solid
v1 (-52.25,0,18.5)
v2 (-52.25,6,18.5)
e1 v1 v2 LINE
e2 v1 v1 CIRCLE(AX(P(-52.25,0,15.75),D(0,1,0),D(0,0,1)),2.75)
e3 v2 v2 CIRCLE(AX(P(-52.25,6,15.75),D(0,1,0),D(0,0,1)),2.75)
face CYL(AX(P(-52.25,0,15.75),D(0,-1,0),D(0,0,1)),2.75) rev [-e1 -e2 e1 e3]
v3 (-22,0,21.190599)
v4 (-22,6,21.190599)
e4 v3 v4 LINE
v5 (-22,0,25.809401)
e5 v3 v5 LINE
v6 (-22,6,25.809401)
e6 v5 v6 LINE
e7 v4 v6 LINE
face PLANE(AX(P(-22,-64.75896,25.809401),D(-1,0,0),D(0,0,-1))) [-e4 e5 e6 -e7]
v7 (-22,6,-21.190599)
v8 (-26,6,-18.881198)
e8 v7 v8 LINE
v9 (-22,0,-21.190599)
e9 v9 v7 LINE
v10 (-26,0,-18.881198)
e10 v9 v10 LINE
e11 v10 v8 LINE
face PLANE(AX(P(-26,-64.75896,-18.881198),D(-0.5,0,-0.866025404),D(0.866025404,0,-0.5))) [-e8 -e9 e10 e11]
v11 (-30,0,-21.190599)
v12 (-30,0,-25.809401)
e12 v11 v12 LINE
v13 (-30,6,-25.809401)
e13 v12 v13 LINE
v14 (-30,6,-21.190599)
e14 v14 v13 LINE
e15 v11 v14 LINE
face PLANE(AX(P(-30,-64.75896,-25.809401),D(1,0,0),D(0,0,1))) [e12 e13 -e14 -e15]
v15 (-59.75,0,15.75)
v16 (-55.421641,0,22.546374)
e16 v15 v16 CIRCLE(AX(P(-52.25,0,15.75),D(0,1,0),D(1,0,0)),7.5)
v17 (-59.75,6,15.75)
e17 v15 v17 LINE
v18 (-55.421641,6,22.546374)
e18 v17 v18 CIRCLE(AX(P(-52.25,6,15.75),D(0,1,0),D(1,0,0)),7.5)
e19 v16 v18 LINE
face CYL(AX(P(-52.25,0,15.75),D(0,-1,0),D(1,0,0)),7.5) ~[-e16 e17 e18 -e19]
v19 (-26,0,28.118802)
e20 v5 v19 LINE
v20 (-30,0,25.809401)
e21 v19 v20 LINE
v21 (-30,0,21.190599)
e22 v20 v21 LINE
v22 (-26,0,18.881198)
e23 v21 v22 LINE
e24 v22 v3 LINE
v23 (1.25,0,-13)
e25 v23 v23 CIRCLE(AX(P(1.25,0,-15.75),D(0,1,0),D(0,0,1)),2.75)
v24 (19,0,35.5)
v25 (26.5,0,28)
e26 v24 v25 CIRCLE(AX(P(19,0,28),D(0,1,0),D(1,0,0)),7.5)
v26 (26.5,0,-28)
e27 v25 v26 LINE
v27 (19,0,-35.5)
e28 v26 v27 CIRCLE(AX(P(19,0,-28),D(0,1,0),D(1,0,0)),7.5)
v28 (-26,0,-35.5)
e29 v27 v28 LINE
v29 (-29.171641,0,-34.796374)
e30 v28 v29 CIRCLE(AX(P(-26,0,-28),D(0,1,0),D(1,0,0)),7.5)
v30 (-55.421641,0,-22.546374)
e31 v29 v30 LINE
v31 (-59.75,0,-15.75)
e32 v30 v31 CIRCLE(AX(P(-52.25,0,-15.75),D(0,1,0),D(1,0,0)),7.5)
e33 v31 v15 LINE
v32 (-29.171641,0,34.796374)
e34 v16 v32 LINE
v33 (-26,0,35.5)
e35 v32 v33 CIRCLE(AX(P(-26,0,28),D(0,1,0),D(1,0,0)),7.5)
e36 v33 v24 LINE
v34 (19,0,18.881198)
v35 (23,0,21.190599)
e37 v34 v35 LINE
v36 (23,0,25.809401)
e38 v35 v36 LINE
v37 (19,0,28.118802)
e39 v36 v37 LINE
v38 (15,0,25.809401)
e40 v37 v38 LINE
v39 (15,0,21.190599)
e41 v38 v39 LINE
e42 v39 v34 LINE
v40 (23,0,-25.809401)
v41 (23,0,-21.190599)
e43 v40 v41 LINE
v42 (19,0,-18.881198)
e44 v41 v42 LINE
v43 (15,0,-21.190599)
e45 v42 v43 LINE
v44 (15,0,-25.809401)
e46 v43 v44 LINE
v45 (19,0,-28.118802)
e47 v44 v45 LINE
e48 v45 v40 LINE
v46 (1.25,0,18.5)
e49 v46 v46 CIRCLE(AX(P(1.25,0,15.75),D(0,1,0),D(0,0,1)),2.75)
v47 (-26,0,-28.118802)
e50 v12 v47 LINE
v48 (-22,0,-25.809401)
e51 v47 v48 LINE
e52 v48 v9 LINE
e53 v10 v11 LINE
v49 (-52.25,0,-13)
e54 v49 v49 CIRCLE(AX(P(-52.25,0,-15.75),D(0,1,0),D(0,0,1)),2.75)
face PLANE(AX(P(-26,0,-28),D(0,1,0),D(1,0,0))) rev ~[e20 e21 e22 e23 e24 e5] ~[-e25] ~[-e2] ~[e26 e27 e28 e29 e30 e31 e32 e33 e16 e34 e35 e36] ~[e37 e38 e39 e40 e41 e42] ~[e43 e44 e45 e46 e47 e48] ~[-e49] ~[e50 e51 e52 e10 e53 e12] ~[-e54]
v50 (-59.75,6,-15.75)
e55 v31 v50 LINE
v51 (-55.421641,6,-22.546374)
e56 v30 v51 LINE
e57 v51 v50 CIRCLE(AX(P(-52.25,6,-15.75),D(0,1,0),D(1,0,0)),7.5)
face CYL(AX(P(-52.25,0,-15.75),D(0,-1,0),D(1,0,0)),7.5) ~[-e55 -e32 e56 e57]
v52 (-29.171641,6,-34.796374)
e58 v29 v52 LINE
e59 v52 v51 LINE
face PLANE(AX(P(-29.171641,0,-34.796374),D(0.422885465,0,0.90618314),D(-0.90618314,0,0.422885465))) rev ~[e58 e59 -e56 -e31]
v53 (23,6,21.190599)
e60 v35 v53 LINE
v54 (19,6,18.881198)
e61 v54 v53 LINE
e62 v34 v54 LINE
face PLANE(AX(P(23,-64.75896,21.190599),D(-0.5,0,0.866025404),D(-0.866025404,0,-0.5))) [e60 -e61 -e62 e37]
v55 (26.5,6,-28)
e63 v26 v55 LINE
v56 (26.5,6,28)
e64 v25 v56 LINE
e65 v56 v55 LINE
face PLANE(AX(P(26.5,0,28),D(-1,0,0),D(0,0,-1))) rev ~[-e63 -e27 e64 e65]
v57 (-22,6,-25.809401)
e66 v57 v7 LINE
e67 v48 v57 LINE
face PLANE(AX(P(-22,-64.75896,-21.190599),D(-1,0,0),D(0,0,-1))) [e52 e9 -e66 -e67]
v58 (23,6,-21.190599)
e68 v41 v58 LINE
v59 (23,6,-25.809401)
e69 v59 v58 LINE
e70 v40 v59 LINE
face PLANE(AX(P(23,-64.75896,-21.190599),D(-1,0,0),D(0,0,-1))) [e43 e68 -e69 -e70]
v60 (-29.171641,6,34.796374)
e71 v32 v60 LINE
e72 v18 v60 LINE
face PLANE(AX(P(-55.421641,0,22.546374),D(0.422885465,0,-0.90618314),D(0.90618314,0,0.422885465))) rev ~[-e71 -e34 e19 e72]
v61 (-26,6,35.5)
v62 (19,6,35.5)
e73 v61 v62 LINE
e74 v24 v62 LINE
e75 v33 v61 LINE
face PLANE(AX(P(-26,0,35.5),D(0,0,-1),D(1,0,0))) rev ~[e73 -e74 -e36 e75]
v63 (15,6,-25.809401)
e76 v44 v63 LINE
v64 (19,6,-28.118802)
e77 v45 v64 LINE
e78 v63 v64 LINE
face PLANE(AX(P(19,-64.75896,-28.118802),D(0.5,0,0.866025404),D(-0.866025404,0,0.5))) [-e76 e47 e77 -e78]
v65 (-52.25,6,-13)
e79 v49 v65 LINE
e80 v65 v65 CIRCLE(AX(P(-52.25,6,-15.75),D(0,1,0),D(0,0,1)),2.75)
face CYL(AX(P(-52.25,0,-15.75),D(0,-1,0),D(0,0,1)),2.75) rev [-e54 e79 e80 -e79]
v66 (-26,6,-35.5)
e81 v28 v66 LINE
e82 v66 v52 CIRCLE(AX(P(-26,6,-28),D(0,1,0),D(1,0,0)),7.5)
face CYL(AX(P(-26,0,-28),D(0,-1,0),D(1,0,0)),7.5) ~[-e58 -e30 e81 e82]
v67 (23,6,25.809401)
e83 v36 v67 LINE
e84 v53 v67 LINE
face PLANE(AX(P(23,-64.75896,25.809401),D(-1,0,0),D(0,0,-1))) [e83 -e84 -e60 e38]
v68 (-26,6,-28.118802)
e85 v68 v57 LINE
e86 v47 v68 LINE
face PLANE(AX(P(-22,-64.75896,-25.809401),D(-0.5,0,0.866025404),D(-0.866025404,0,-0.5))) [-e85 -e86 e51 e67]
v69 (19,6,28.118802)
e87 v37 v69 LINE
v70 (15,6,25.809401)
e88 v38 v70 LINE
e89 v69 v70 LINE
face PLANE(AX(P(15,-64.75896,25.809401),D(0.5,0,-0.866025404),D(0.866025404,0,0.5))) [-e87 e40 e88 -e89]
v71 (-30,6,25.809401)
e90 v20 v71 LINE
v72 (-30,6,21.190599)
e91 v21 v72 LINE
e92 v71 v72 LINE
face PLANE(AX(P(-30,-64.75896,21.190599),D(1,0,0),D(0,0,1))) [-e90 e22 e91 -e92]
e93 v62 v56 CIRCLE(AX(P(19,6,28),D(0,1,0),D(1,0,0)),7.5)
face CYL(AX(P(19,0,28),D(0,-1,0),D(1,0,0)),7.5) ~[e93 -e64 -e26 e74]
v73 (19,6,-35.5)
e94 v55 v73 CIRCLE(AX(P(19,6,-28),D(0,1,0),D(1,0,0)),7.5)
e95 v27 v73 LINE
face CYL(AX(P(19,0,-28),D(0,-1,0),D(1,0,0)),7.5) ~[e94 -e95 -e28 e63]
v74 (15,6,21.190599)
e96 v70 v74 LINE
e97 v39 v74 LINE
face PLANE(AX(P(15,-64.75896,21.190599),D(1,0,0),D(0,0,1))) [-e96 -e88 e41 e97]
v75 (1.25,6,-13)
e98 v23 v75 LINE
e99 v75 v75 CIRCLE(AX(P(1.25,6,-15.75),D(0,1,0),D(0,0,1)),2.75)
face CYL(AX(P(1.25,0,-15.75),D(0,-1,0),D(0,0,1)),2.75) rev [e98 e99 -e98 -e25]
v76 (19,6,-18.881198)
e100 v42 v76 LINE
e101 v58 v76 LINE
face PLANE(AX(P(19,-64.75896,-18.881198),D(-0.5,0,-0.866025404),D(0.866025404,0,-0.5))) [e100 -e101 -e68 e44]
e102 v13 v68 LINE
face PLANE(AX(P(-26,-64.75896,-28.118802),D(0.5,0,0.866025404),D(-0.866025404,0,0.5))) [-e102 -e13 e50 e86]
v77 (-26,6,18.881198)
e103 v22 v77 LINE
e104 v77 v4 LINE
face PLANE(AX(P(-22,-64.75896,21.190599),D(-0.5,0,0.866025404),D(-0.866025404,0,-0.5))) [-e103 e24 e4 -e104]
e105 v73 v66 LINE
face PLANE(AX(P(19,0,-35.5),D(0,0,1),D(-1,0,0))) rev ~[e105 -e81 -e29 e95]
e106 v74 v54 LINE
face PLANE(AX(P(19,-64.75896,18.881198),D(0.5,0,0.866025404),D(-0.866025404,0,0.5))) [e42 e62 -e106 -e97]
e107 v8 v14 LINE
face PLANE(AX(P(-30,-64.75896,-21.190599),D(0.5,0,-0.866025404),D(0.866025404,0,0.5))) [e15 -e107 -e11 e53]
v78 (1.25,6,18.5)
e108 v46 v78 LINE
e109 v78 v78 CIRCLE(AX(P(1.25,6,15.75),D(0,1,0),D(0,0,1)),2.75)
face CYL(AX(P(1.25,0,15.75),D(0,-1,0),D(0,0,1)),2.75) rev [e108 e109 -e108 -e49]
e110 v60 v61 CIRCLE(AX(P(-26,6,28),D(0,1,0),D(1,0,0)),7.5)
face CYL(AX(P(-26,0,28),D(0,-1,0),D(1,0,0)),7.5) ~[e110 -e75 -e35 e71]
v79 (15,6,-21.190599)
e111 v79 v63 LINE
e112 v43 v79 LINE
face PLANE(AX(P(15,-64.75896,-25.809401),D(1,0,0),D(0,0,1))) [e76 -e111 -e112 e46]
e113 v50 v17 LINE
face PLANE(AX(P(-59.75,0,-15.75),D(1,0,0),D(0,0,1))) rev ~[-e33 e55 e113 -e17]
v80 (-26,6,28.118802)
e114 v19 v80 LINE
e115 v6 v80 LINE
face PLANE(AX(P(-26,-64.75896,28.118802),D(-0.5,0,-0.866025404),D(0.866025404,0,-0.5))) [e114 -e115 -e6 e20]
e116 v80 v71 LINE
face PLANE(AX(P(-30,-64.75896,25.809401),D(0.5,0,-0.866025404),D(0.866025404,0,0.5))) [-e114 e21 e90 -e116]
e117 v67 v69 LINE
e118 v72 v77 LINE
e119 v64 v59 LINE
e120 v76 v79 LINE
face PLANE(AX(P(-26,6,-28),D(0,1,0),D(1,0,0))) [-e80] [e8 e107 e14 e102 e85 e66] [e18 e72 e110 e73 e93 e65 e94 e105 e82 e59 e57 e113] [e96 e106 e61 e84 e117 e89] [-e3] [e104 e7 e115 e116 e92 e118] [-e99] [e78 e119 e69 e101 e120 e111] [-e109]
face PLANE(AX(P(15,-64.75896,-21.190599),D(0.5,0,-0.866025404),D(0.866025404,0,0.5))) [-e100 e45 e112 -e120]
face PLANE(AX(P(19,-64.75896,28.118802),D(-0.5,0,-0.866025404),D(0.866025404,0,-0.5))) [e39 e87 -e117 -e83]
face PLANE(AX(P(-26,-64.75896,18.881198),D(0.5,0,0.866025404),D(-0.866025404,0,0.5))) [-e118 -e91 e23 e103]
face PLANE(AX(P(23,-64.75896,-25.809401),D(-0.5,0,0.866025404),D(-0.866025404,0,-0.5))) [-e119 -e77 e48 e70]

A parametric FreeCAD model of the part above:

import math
import FreeCAD as App
import Part
import Sketcher

V = App.Vector
Q = App.Units.Quantity

doc = App.newDocument("Part")
body = doc.addObject("PartDesign::Body", "Body")

sketch1 = doc.addObject("Sketcher::SketchObject", "Sketch")
body.addObject(sketch1)
sketch1.AttachmentSupport = (doc.XZ_Plane, [""])
sketch1.MapMode = "FlatFace"
sketch1.addGeometry([
    Part.ArcOfCircle(Part.Circle(V(-52.25, -15.75, 0), V(0, 0, 1), 7.5), math.radians(180), math.radians(244.983107)),
    Part.LineSegment(V(-59.75, -15.75, 0), V(-59.75, 15.75, 0)),
    Part.ArcOfCircle(Part.Circle(V(-52.25, 15.75, 0), V(0, 0, 1), 7.5), math.radians(115.016893), math.radians(180)),
    Part.LineSegment(V(-55.421641, 22.546374, 0), V(-29.171641, 34.796374, 0)),
    Part.ArcOfCircle(Part.Circle(V(-26, 28, 0), V(0, 0, 1), 7.5), math.radians(90), math.radians(115.016893)),
    Part.LineSegment(V(-26, 35.5, 0), V(19, 35.5, 0)),
    Part.ArcOfCircle(Part.Circle(V(19, 28, 0), V(0, 0, 1), 7.5), math.radians(0), math.radians(90)),
    Part.LineSegment(V(26.5, 28, 0), V(26.5, -28, 0)),
    Part.ArcOfCircle(Part.Circle(V(19, -28, 0), V(0, 0, 1), 7.5), math.radians(-90), math.radians(0)),
    Part.LineSegment(V(19, -35.5, 0), V(-26, -35.5, 0)),
    Part.ArcOfCircle(Part.Circle(V(-26, -28, 0), V(0, 0, 1), 7.5), math.radians(-115.016893), math.radians(-90)),
    Part.LineSegment(V(-29.171641, -34.796374, 0), V(-55.421641, -22.546374, 0)),
    Part.Circle(V(-52.25, -15.75, 0), V(0, 0, 1), 2.75),
    Part.Circle(V(1.25, 15.75, 0), V(0, 0, 1), 2.75),
    Part.Circle(V(1.25, -15.75, 0), V(0, 0, 1), 2.75),
    Part.Circle(V(-52.25, 15.75, 0), V(0, 0, 1), 2.75),
    Part.Circle(V(-26, -23.5, 0), V(0, 0, 1), 2.5),
    Part.Circle(V(-26, 23.5, 0), V(0, 0, 1), 2.5),
    Part.Circle(V(19, -23.5, 0), V(0, 0, 1), 2.5),
    Part.Circle(V(19, 23.5, 0), V(0, 0, 1), 2.5),
], False)
sketch1.addConstraint([
    Sketcher.Constraint("Tangent", 0, 1, 1, 1),
    Sketcher.Constraint("Tangent", 1, 2, 2, 2),
    Sketcher.Constraint("Tangent", 2, 1, 3, 1),
    Sketcher.Constraint("Tangent", 3, 2, 4, 2),
    Sketcher.Constraint("Tangent", 4, 1, 5, 1),
    Sketcher.Constraint("Tangent", 5, 2, 6, 2),
    Sketcher.Constraint("Tangent", 6, 1, 7, 1),
    Sketcher.Constraint("Tangent", 7, 2, 8, 2),
    Sketcher.Constraint("Tangent", 8, 1, 9, 1),
    Sketcher.Constraint("Tangent", 9, 2, 10, 2),
    Sketcher.Constraint("Tangent", 10, 1, 11, 1),
    Sketcher.Constraint("Tangent", 11, 2, 0, 2),
    Sketcher.Constraint("Vertical", 1),
    Sketcher.Constraint("Horizontal", 5),
    Sketcher.Constraint("Vertical", 7),
    Sketcher.Constraint("Horizontal", 9),
    Sketcher.Constraint("Coincident", 12, 3, 0, 3),
    Sketcher.Constraint("Coincident", 15, 3, 2, 3),
    Sketcher.Constraint("Equal", 0, 2),
    Sketcher.Constraint("Equal", 2, 4),
    Sketcher.Constraint("Equal", 4, 6),
    Sketcher.Constraint("Equal", 6, 8),
    Sketcher.Constraint("Equal", 8, 10),
    Sketcher.Constraint("Equal", 12, 13),
    Sketcher.Constraint("Equal", 13, 14),
    Sketcher.Constraint("Equal", 14, 15),
    Sketcher.Constraint("Equal", 16, 17),
    Sketcher.Constraint("Equal", 17, 18),
    Sketcher.Constraint("Equal", 18, 19),
    Sketcher.Constraint("Symmetric", 4, 3, 10, 3, -1),
    Sketcher.Constraint("Symmetric", 13, 3, 14, 3, -1),
    Sketcher.Constraint("Symmetric", 16, 3, 17, 3, -1),
    Sketcher.Constraint("Symmetric", 18, 3, 19, 3, -1),
    Sketcher.Constraint("Horizontal", 2, 3, 13, 3),
    Sketcher.Constraint("Horizontal", 12, 3, 14, 3),
    Sketcher.Constraint("Horizontal", 16, 3, 18, 3),
    Sketcher.Constraint("Vertical", 10, 3, 16, 3),
    Sketcher.Constraint("Vertical", 8, 3, 18, 3),
    Sketcher.Constraint("Diameter", 16, 5.0),
    Sketcher.Constraint("Diameter", 12, 5.5),
    Sketcher.Constraint("Radius", 0, 7.5),
    Sketcher.Constraint("DistanceX", 5, 1, 5, 2, 45.0),
    Sketcher.Constraint("DistanceY", 7, 2, 7, 1, 56.0),
    Sketcher.Constraint("DistanceY", 1, 1, 1, 2, 31.5),
    Sketcher.Constraint("DistanceX", 4, 3, -1, 1, 26.0),
    Sketcher.Constraint("DistanceY", 17, 3, 4, 1, 12.0),
    Sketcher.Constraint("DistanceX", 2, 3, 13, 3, 53.5),
    Sketcher.Constraint("DistanceX", 0, 3, -1, 1, 52.25),
])
pad1 = doc.addObject("PartDesign::Pad", "Pad")
body.addObject(pad1)
pad1.Profile = sketch1
pad1.Length = 6
pad1.Reversed = True

sketch2 = doc.addObject("Sketcher::SketchObject", "Sketch001")
body.addObject(sketch2)
sketch2.AttachmentSupport = (doc.XZ_Plane, [""])
sketch2.MapMode = "FlatFace"
sketch2.AttachmentOffset = App.Placement(V(0, 0, -6), App.Rotation())
sketch2.addGeometry([
    Part.LineSegment(V(-26, -18.881198, 0), V(-22, -21.190599, 0)),
    Part.LineSegment(V(-22, -21.190599, 0), V(-22, -25.809401, 0)),
    Part.LineSegment(V(-22, -25.809401, 0), V(-26, -28.118802, 0)),
    Part.LineSegment(V(-26, -28.118802, 0), V(-30, -25.809401, 0)),
    Part.LineSegment(V(-30, -25.809401, 0), V(-30, -21.190599, 0)),
    Part.LineSegment(V(-30, -21.190599, 0), V(-26, -18.881198, 0)),
    Part.LineSegment(V(-26, 18.881198, 0), V(-30, 21.190599, 0)),
    Part.LineSegment(V(-30, 21.190599, 0), V(-30, 25.809401, 0)),
    Part.LineSegment(V(-30, 25.809401, 0), V(-26, 28.118802, 0)),
    Part.LineSegment(V(-26, 28.118802, 0), V(-22, 25.809401, 0)),
    Part.LineSegment(V(-22, 25.809401, 0), V(-22, 21.190599, 0)),
    Part.LineSegment(V(-22, 21.190599, 0), V(-26, 18.881198, 0)),
    Part.LineSegment(V(15, 25.809401, 0), V(19, 28.118802, 0)),
    Part.LineSegment(V(19, 28.118802, 0), V(23, 25.809401, 0)),
    Part.LineSegment(V(23, 25.809401, 0), V(23, 21.190599, 0)),
    Part.LineSegment(V(23, 21.190599, 0), V(19, 18.881198, 0)),
    Part.LineSegment(V(19, 18.881198, 0), V(15, 21.190599, 0)),
    Part.LineSegment(V(15, 21.190599, 0), V(15, 25.809401, 0)),
    Part.LineSegment(V(19, -18.881198, 0), V(23, -21.190599, 0)),
    Part.LineSegment(V(23, -21.190599, 0), V(23, -25.809401, 0)),
    Part.LineSegment(V(23, -25.809401, 0), V(19, -28.118802, 0)),
    Part.LineSegment(V(19, -28.118802, 0), V(15, -25.809401, 0)),
    Part.LineSegment(V(15, -25.809401, 0), V(15, -21.190599, 0)),
    Part.LineSegment(V(15, -21.190599, 0), V(19, -18.881198, 0)),
], False)
sketch2.addConstraint([
    Sketcher.Constraint("Coincident", 0, 2, 1, 1),
    Sketcher.Constraint("Coincident", 1, 2, 2, 1),
    Sketcher.Constraint("Coincident", 2, 2, 3, 1),
    Sketcher.Constraint("Coincident", 3, 2, 4, 1),
    Sketcher.Constraint("Coincident", 4, 2, 5, 1),
    Sketcher.Constraint("Coincident", 5, 2, 0, 1),
    Sketcher.Constraint("Coincident", 6, 2, 7, 1),
    Sketcher.Constraint("Coincident", 7, 2, 8, 1),
    Sketcher.Constraint("Coincident", 8, 2, 9, 1),
    Sketcher.Constraint("Coincident", 9, 2, 10, 1),
    Sketcher.Constraint("Coincident", 10, 2, 11, 1),
    Sketcher.Constraint("Coincident", 11, 2, 6, 1),
    Sketcher.Constraint("Coincident", 12, 2, 13, 1),
    Sketcher.Constraint("Coincident", 13, 2, 14, 1),
    Sketcher.Constraint("Coincident", 14, 2, 15, 1),
    Sketcher.Constraint("Coincident", 15, 2, 16, 1),
    Sketcher.Constraint("Coincident", 16, 2, 17, 1),
    Sketcher.Constraint("Coincident", 17, 2, 12, 1),
    Sketcher.Constraint("Coincident", 18, 2, 19, 1),
    Sketcher.Constraint("Coincident", 19, 2, 20, 1),
    Sketcher.Constraint("Coincident", 20, 2, 21, 1),
    Sketcher.Constraint("Coincident", 21, 2, 22, 1),
    Sketcher.Constraint("Coincident", 22, 2, 23, 1),
    Sketcher.Constraint("Coincident", 23, 2, 18, 1),
    Sketcher.Constraint("Vertical", 1),
    Sketcher.Constraint("Vertical", 4),
    Sketcher.Constraint("Vertical", 7),
    Sketcher.Constraint("Vertical", 10),
    Sketcher.Constraint("Vertical", 14),
    Sketcher.Constraint("Vertical", 17),
    Sketcher.Constraint("Vertical", 19),
    Sketcher.Constraint("Vertical", 22),
    Sketcher.Constraint("Symmetric", 4, 2, 6, 2, -1),
    Sketcher.Constraint("Symmetric", 2, 2, 8, 2, -1),
    Sketcher.Constraint("Symmetric", 1, 2, 9, 2, -1),
    Sketcher.Constraint("Symmetric", 5, 2, 11, 2, -1),
    Sketcher.Constraint("Symmetric", 14, 2, 18, 2, -1),
    Sketcher.Constraint("Symmetric", 12, 2, 20, 2, -1),
    Sketcher.Constraint("Symmetric", 17, 2, 21, 2, -1),
    Sketcher.Constraint("Symmetric", 15, 2, 23, 2, -1),
    Sketcher.Constraint("Parallel", 0, 3),
    Sketcher.Constraint("Parallel", 2, 5),
    Sketcher.Constraint("Parallel", 3, 6),
    Sketcher.Constraint("Parallel", 5, 8),
    Sketcher.Constraint("Parallel", 8, 11),
    Sketcher.Constraint("Parallel", 11, 12),
    Sketcher.Constraint("Parallel", 9, 13),
    Sketcher.Constraint("Parallel", 12, 15),
    Sketcher.Constraint("Parallel", 13, 16),
    Sketcher.Constraint("Parallel", 15, 20),
    Sketcher.Constraint("Parallel", 20, 23),
    Sketcher.Constraint("Horizontal", 1, 2, 3, 2),
    Sketcher.Constraint("Horizontal", 0, 2, 4, 2),
    Sketcher.Constraint("Horizontal", 8, 2, 12, 2),
    Sketcher.Constraint("Horizontal", 9, 2, 13, 2),
    Sketcher.Constraint("Horizontal", 10, 2, 14, 2),
    Sketcher.Constraint("Horizontal", 11, 2, 15, 2),
    Sketcher.Constraint("Horizontal", 14, 2, 16, 2),
    Sketcher.Constraint("Angle", 0, Q("-30 deg")),
    Sketcher.Constraint("DistanceX", 0, 2, -1, 1, 22.0),
    Sketcher.Constraint("DistanceX", 2, 2, -1, 1, 26.0),
    Sketcher.Constraint("DistanceX", -1, 1, 12, 2, 19.0),
    Sketcher.Constraint("DistanceY", 3, 2, 6, 2, 47.0),
    Sketcher.Constraint("DistanceY", 0, 2, -1, 1, 21.190599),
])
pocket1 = doc.addObject("PartDesign::Pocket", "Pocket")
body.addObject(pocket1)
pocket1.Profile = sketch2
pocket1.Type = "ThroughAll"
pocket1.Midplane = True

doc.recompute()
